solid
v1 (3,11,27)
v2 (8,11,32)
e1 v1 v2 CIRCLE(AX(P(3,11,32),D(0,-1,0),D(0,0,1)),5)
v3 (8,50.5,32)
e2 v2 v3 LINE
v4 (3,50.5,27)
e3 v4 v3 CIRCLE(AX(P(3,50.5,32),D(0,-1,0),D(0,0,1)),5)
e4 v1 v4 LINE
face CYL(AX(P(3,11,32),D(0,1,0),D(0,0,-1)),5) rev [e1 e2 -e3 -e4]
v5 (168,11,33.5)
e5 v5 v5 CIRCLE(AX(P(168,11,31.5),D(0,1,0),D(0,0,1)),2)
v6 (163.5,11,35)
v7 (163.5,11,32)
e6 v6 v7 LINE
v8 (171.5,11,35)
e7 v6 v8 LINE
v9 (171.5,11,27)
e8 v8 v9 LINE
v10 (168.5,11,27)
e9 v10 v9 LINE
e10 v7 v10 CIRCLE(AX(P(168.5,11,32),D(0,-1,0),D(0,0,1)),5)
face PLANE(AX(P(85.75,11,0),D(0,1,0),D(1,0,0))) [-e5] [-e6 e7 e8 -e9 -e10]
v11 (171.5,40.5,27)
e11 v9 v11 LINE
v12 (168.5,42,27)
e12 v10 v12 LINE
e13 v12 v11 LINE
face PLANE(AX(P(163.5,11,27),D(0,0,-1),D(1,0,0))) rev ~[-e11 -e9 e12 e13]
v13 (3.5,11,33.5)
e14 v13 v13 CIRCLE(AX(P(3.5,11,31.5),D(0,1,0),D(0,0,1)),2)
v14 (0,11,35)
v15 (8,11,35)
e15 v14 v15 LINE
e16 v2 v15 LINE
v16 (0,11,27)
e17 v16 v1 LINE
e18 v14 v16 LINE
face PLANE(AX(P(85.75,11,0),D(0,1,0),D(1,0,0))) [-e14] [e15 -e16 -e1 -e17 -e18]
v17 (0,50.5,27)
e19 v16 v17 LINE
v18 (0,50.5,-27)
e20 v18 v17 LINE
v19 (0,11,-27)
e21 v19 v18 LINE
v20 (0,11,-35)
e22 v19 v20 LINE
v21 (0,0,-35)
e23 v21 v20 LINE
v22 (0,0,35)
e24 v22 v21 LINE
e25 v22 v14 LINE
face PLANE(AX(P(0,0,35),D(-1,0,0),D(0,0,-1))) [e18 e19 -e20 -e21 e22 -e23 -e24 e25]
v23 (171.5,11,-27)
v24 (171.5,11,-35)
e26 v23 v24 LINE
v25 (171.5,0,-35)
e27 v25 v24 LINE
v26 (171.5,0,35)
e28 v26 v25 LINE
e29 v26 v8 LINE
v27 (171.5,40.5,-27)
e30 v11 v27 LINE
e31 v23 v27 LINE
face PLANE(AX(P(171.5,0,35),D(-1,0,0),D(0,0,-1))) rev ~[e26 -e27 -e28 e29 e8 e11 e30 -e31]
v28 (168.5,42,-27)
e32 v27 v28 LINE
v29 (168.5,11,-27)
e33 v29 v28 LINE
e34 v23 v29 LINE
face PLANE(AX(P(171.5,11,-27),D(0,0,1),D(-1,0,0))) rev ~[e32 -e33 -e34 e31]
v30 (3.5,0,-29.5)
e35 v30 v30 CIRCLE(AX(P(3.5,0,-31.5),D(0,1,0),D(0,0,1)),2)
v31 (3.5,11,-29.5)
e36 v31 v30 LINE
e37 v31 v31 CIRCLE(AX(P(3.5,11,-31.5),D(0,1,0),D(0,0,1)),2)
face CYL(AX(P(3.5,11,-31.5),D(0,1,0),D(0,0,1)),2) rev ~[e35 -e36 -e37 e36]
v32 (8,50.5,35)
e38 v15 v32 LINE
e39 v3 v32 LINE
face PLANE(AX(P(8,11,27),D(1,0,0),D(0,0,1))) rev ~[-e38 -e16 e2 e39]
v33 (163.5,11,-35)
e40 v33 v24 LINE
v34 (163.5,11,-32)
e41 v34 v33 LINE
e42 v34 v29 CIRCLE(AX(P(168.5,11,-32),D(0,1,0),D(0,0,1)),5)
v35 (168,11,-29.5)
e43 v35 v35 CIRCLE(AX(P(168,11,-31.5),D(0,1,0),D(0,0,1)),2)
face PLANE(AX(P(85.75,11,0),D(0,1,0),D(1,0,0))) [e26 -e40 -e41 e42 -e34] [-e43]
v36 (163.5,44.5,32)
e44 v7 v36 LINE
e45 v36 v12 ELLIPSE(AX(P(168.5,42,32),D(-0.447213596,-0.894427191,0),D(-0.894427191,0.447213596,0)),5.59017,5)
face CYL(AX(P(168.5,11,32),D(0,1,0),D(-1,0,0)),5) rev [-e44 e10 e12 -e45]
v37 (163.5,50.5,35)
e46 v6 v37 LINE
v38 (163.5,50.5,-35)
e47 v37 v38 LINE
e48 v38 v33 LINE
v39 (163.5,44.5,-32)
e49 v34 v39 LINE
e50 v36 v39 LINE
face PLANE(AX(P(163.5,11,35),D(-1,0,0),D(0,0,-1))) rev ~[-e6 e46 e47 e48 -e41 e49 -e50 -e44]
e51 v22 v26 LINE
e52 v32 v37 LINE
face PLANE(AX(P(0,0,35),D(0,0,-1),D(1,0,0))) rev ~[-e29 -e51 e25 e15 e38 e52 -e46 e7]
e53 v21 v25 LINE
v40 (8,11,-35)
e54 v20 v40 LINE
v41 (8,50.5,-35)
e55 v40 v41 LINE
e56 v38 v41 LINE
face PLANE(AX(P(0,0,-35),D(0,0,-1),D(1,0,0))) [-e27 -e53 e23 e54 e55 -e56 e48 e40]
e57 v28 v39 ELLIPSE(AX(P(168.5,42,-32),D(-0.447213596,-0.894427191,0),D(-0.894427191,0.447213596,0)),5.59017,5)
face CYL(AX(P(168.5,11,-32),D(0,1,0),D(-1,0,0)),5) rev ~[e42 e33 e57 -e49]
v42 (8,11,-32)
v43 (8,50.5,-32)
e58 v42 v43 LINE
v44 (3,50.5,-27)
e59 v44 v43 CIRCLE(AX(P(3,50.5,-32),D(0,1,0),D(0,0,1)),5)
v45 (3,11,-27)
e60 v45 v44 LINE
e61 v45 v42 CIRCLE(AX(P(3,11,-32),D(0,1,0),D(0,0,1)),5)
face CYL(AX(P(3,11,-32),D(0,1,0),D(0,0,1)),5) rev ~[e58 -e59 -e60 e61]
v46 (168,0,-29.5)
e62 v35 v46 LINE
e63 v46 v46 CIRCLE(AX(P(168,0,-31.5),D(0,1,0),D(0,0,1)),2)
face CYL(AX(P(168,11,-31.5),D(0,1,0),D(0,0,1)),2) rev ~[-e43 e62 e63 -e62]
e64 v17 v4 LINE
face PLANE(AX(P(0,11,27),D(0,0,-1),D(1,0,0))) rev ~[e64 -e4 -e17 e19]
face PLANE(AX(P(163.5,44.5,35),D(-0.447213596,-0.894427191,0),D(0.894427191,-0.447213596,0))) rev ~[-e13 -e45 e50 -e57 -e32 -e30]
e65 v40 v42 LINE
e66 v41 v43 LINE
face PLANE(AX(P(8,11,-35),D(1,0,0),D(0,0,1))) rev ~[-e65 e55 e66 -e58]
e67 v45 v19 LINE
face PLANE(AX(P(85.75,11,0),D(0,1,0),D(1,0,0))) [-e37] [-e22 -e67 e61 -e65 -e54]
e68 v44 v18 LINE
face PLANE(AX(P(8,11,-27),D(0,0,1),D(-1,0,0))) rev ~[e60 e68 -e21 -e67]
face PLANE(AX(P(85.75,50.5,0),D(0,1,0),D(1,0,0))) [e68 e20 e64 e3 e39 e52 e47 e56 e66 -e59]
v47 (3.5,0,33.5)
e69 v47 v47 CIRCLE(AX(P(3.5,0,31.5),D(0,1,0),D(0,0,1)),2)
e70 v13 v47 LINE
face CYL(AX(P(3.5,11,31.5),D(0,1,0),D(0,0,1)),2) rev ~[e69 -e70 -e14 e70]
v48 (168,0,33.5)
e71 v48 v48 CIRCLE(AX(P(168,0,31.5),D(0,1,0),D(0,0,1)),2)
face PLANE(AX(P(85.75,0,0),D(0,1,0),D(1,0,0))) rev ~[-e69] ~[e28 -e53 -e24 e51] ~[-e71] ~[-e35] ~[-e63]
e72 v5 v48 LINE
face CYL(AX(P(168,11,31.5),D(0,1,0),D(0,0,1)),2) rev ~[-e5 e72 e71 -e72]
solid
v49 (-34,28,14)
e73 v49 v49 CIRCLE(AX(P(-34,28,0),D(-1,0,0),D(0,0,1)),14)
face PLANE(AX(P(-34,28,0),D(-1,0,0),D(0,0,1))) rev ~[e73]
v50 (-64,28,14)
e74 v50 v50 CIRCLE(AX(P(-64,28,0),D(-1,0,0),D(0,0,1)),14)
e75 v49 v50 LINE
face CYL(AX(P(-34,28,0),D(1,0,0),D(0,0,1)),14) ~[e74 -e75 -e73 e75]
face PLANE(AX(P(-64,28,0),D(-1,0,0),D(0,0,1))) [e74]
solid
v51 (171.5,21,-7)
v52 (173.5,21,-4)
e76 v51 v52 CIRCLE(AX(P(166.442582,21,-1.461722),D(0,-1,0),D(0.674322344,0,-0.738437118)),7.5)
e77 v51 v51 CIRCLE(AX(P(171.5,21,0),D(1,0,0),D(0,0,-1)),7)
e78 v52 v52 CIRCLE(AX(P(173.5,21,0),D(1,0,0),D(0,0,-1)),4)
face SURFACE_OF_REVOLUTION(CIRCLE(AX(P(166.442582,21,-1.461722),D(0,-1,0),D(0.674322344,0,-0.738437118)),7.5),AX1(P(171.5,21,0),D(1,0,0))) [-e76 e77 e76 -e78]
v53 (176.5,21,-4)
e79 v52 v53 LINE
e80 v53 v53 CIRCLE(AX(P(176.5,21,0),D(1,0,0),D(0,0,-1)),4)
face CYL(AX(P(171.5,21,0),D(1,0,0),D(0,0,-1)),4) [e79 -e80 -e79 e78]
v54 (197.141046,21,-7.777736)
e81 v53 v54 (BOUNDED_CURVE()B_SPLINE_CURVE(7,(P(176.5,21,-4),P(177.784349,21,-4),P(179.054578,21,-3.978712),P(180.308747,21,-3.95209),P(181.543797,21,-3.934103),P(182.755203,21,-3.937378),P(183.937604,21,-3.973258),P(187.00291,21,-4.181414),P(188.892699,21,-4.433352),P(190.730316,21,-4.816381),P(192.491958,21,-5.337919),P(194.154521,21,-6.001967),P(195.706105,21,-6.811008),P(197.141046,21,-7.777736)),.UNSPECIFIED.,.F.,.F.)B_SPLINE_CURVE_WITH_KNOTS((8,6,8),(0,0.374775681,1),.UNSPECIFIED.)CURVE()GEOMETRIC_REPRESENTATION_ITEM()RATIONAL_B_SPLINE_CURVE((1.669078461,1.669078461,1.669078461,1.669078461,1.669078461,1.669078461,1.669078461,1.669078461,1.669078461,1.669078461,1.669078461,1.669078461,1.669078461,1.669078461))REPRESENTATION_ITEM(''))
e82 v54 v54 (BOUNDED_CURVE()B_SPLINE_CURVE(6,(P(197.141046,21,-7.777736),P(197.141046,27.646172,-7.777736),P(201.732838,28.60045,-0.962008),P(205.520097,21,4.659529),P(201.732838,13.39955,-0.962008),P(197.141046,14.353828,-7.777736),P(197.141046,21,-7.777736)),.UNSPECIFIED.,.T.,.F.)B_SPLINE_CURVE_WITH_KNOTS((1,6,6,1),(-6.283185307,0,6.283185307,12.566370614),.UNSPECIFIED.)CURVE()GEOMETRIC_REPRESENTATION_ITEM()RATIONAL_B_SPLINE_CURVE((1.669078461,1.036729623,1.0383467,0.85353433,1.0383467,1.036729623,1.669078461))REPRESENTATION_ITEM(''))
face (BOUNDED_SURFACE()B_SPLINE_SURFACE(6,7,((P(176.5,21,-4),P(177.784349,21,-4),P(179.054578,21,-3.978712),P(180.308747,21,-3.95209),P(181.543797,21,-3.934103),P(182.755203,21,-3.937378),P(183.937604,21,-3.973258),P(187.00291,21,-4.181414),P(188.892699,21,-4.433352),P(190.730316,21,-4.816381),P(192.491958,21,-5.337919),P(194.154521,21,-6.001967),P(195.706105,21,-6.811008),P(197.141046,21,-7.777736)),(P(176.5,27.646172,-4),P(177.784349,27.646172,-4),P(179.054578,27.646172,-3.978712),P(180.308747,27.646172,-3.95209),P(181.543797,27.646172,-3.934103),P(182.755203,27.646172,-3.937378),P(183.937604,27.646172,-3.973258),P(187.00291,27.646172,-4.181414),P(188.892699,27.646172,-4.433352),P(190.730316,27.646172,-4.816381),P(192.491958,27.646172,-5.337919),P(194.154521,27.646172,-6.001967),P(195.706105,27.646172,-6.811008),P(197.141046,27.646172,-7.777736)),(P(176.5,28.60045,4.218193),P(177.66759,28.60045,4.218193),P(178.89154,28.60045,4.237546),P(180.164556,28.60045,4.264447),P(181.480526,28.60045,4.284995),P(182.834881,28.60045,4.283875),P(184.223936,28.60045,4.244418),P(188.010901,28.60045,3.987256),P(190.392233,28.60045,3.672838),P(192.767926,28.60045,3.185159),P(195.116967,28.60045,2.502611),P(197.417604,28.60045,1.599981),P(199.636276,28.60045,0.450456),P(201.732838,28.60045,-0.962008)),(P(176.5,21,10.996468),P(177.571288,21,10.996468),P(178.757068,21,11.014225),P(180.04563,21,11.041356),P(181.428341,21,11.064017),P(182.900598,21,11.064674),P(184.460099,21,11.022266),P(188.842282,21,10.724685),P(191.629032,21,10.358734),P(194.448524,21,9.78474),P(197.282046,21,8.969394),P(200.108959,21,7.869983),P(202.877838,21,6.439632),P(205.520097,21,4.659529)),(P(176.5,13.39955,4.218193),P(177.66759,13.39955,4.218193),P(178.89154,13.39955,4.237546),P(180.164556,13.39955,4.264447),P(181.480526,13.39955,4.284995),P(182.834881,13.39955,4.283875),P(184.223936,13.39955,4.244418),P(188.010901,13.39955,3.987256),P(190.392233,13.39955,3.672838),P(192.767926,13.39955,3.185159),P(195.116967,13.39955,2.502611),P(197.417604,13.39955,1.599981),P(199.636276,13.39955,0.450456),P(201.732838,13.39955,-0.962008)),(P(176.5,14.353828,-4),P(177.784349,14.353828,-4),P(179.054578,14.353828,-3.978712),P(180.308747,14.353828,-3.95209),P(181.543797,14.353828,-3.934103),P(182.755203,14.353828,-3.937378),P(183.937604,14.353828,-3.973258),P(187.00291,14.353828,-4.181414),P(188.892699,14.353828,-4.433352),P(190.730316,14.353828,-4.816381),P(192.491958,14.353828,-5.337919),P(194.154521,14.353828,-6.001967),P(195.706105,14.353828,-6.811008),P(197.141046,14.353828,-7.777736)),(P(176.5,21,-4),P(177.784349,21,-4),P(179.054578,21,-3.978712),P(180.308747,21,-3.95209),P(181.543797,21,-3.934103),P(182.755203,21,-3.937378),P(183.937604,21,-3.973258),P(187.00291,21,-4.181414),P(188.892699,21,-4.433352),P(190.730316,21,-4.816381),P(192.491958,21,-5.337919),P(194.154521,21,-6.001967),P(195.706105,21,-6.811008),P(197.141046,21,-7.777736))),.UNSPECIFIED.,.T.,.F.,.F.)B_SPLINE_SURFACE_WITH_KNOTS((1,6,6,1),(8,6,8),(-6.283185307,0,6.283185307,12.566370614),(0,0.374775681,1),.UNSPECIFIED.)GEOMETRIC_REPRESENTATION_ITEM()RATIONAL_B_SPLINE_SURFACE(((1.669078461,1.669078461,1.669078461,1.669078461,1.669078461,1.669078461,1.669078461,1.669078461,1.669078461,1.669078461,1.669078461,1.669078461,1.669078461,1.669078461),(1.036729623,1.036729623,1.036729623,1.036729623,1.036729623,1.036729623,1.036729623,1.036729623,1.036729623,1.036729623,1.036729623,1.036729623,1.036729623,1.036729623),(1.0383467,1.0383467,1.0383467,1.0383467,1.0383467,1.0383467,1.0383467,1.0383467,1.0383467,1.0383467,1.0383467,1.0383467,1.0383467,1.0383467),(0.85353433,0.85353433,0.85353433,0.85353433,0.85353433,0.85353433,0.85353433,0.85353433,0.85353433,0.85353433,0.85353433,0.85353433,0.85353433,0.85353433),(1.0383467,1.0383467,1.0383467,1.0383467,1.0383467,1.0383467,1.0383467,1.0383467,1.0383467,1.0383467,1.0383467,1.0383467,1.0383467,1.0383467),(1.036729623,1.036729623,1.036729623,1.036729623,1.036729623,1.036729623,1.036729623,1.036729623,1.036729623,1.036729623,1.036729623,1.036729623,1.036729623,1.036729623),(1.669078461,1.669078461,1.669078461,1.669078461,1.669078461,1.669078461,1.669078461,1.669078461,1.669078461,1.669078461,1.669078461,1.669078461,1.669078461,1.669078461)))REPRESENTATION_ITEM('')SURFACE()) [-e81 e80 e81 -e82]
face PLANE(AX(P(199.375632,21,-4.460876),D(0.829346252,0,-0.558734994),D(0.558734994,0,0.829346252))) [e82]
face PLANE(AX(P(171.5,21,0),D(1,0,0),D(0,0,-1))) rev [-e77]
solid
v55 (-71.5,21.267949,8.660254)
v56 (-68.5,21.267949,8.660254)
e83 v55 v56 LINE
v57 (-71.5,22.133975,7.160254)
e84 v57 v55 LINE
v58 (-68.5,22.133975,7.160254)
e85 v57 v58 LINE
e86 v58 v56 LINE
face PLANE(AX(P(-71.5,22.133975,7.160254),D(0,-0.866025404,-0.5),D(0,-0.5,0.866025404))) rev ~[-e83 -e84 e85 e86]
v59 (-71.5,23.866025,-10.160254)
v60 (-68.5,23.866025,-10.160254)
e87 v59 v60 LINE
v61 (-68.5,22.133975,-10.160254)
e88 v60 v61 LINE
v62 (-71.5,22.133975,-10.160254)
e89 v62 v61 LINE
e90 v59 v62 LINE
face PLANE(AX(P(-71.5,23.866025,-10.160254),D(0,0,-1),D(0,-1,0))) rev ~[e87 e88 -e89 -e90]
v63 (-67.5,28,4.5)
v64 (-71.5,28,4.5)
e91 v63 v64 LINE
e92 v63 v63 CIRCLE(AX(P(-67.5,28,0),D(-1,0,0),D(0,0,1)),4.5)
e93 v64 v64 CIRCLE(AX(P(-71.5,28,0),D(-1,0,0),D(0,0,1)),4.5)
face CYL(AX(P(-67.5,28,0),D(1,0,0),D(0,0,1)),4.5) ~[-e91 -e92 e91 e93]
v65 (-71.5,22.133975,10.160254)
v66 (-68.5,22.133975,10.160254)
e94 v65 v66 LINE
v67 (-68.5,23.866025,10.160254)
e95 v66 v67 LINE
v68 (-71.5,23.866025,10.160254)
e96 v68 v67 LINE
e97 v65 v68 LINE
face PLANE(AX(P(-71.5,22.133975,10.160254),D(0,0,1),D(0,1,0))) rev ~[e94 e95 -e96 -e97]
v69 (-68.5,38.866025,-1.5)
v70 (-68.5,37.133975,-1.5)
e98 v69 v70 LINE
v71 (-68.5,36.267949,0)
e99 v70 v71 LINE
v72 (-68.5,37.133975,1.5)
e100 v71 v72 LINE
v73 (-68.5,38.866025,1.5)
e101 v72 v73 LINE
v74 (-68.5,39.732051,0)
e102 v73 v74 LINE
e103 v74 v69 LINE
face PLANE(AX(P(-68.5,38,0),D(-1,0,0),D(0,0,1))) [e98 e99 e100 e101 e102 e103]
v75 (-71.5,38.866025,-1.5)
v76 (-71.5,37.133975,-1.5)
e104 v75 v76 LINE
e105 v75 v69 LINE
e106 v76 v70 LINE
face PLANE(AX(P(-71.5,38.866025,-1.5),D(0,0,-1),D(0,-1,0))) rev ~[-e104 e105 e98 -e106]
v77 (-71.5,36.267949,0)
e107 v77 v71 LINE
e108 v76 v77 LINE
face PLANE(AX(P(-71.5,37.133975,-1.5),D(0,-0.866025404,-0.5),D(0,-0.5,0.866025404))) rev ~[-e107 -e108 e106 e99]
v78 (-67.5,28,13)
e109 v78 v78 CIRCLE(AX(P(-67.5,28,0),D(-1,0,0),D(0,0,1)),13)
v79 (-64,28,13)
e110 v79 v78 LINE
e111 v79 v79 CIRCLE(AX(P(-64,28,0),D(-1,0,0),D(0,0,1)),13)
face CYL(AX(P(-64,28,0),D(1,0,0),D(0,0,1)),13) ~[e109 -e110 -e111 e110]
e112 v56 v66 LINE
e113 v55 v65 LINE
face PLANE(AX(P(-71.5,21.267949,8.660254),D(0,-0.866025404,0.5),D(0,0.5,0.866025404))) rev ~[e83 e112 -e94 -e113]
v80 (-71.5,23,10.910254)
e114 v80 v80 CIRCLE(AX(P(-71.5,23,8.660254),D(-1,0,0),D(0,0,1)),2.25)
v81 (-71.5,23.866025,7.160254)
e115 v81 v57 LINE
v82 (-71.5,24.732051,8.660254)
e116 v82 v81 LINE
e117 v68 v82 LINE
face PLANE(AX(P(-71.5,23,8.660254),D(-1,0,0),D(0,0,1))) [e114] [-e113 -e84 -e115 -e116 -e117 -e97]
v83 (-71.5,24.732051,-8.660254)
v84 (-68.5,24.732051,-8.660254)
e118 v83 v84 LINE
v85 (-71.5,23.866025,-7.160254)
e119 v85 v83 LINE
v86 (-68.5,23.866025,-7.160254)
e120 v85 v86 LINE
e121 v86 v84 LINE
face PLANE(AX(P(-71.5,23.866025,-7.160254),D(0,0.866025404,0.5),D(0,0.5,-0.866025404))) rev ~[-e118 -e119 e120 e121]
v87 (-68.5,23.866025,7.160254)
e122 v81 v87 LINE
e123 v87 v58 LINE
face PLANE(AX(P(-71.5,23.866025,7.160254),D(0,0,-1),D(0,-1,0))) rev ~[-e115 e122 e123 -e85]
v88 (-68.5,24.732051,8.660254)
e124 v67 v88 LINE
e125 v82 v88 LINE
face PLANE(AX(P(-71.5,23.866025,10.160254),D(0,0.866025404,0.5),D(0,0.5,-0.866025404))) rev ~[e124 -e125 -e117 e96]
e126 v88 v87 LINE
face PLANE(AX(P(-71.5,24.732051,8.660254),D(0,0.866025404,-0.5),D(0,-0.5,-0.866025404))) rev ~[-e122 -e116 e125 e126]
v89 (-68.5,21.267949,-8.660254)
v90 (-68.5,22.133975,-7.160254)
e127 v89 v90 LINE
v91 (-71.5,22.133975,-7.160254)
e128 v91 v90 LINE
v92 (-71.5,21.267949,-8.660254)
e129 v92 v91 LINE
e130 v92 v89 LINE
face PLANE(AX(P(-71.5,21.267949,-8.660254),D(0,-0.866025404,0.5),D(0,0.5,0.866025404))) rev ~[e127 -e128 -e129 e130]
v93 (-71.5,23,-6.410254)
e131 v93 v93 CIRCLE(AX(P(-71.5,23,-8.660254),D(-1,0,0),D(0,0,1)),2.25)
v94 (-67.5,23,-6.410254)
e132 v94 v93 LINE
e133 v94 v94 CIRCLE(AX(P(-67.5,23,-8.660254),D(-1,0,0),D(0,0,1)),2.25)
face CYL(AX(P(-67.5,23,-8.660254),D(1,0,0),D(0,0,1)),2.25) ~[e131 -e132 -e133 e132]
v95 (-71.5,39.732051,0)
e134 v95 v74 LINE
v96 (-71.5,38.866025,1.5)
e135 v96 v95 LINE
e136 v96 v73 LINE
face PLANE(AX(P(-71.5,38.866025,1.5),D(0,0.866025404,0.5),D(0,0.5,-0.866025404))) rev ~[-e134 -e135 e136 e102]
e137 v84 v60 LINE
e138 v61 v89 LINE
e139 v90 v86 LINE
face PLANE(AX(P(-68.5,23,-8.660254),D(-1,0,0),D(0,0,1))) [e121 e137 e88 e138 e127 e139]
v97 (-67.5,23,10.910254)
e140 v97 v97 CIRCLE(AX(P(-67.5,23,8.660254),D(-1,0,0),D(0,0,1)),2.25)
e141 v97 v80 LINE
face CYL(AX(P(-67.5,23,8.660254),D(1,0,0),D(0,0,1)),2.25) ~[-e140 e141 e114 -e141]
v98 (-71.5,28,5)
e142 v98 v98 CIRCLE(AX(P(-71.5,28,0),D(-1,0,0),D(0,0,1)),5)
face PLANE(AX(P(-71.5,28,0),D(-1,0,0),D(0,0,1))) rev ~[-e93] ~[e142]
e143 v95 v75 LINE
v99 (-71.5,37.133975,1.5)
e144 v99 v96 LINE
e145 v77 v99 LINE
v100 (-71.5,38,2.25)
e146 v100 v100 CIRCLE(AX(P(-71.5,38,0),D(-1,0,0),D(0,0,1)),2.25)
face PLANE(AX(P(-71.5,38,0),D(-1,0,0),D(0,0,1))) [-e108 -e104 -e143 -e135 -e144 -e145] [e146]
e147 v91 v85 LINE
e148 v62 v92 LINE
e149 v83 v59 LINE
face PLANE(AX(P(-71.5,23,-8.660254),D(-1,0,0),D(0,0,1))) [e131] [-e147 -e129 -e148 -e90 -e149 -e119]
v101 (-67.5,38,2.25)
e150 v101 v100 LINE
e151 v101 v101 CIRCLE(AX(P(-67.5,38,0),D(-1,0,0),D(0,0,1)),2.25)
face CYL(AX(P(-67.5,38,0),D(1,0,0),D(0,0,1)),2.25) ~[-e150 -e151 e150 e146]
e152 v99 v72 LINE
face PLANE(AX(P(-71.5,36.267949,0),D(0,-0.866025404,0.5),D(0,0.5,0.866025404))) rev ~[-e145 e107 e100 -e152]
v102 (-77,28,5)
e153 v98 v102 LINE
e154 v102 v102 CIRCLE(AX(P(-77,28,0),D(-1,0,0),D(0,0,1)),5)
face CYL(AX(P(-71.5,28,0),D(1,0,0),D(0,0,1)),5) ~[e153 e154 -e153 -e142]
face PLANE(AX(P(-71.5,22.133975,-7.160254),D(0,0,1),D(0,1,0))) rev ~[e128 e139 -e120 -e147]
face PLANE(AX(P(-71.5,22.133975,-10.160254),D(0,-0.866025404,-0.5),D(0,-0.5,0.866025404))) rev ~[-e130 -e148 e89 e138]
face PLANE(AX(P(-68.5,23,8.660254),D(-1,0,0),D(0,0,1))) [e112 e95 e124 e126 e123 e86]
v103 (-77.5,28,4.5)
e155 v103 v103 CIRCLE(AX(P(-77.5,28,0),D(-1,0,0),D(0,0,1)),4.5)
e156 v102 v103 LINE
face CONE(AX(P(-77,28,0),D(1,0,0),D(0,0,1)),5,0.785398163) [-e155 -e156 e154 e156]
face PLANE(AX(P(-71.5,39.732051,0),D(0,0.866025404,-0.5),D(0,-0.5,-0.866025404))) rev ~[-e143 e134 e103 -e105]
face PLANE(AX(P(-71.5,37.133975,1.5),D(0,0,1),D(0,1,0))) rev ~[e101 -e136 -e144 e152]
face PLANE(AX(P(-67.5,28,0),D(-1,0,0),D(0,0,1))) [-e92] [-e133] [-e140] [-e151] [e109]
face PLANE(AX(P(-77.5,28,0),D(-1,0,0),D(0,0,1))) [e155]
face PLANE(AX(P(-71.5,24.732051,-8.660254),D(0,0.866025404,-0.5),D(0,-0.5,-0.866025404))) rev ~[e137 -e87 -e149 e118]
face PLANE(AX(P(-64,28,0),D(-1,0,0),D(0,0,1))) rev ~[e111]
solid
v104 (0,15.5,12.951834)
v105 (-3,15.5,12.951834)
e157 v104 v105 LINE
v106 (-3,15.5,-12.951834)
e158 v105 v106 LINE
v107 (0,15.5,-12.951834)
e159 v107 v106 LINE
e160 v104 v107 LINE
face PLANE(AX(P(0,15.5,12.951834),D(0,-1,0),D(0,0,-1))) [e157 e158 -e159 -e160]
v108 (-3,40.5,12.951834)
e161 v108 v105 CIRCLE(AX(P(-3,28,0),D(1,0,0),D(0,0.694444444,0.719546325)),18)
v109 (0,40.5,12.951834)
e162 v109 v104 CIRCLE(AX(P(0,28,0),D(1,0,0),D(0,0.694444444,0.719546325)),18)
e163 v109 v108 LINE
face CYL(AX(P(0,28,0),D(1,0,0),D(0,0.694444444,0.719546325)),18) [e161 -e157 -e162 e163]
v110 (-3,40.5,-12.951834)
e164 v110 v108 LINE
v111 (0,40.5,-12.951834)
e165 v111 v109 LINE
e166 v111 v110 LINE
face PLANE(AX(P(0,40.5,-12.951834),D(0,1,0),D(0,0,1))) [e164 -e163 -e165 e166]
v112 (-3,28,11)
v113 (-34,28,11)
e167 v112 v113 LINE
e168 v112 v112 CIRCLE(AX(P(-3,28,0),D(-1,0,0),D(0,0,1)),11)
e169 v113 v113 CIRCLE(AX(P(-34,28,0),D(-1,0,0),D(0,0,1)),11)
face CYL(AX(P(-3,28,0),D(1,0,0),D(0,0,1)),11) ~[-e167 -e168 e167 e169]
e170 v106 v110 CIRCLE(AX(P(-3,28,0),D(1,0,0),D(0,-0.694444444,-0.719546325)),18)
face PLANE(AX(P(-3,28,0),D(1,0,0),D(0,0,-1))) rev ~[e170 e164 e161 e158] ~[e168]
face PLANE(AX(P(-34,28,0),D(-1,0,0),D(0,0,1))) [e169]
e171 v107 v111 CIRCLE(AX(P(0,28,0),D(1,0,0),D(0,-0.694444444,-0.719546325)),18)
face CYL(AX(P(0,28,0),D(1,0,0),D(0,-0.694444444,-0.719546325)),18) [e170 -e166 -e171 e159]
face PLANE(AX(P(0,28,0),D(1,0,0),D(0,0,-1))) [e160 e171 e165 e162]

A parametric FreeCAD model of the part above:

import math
import FreeCAD as App
import Part
import Sketcher
Q = App.Units.Quantity


def edges_at(feature, points):
    """Names of the edges that pass closest to the given points."""
    edges = feature.Shape.Edges
    near = lambda p: min(range(len(edges)), key=lambda i: edges[i].distToShape(Part.Vertex(*p))[0])
    return sorted({f"Edge{near(p) + 1}" for p in points})

doc = App.newDocument("Part")
body = doc.addObject("PartDesign::Body", "Body")

sketch1 = body.newObject("Sketcher::SketchObject", "Sketch")
sketch1.AttachmentSupport = (doc.getObject("XZ_Plane"), [""])
sketch1.MapMode = "FlatFace"
sketch1.addGeometry([
    Part.LineSegment(App.Vector(0, -35, 0), App.Vector(0, 35, 0)),
    Part.LineSegment(App.Vector(0, 35, 0), App.Vector(172, 35, 0)),
    Part.LineSegment(App.Vector(172, 35, 0), App.Vector(172, -35, 0)),
    Part.LineSegment(App.Vector(172, -35, 0), App.Vector(0, -35, 0)),
], False)
sketch1.addConstraint([
    Sketcher.Constraint("Coincident", 0, 2, 1, 1),
    Sketcher.Constraint("Coincident", 1, 2, 2, 1),
    Sketcher.Constraint("Coincident", 2, 2, 3, 1),
    Sketcher.Constraint("Coincident", 3, 2, 0, 1),
    Sketcher.Constraint("Vertical", 0),
    Sketcher.Constraint("Horizontal", 1),
    Sketcher.Constraint("Vertical", 2),
    Sketcher.Constraint("Horizontal", 3),
    Sketcher.Constraint("Symmetric", 0, 2, 3, 2, -1, 1),
    Sketcher.Constraint("DistanceY", 0, 1, 0, 2, 70.0),
    Sketcher.Constraint("DistanceX", 1, 1, 1, 2, 171.5),
])
pad1 = body.newObject("PartDesign::Pad", "Pad")
pad1.Profile = sketch1
pad1.Length = 11
pad1.Reversed = True

sketch2 = body.newObject("Sketcher::SketchObject", "Sketch001")
sketch2.AttachmentSupport = (doc.getObject("XZ_Plane"), [""])
sketch2.MapMode = "FlatFace"
sketch2.AttachmentOffset = App.Placement(App.Vector(0, 0, -11), App.Rotation())
sketch2.addGeometry([
    Part.LineSegment(App.Vector(0, -27, 0), App.Vector(0, 27, 0)),
    Part.LineSegment(App.Vector(0, 27, 0), App.Vector(8, 27, 0)),
    Part.LineSegment(App.Vector(8, 27, 0), App.Vector(8, 35, 0)),
    Part.LineSegment(App.Vector(8, 35, 0), App.Vector(164, 35, 0)),
    Part.LineSegment(App.Vector(164, 35, 0), App.Vector(164, 27, 0)),
    Part.LineSegment(App.Vector(164, 27, 0), App.Vector(172, 27, 0)),
    Part.LineSegment(App.Vector(172, 27, 0), App.Vector(172, -27, 0)),
    Part.LineSegment(App.Vector(172, -27, 0), App.Vector(164, -27, 0)),
    Part.LineSegment(App.Vector(164, -27, 0), App.Vector(164, -35, 0)),
    Part.LineSegment(App.Vector(164, -35, 0), App.Vector(8, -35, 0)),
    Part.LineSegment(App.Vector(8, -35, 0), App.Vector(8, -27, 0)),
    Part.LineSegment(App.Vector(8, -27, 0), App.Vector(0, -27, 0)),
], False)
sketch2.addConstraint([
    Sketcher.Constraint("Coincident", 0, 2, 1, 1),
    Sketcher.Constraint("Coincident", 1, 2, 2, 1),
    Sketcher.Constraint("Coincident", 2, 2, 3, 1),
    Sketcher.Constraint("Coincident", 3, 2, 4, 1),
    Sketcher.Constraint("Coincident", 4, 2, 5, 1),
    Sketcher.Constraint("Coincident", 5, 2, 6, 1),
    Sketcher.Constraint("Coincident", 6, 2, 7, 1),
    Sketcher.Constraint("Coincident", 7, 2, 8, 1),
    Sketcher.Constraint("Coincident", 8, 2, 9, 1),
    Sketcher.Constraint("Coincident", 9, 2, 10, 1),
    Sketcher.Constraint("Coincident", 10, 2, 11, 1),
    Sketcher.Constraint("Coincident", 11, 2, 0, 1),
    Sketcher.Constraint("Vertical", 0),
    Sketcher.Constraint("Horizontal", 1),
    Sketcher.Constraint("Vertical", 2),
    Sketcher.Constraint("Horizontal", 3),
    Sketcher.Constraint("Vertical", 4),
    Sketcher.Constraint("Horizontal", 5),
    Sketcher.Constraint("Vertical", 6),
    Sketcher.Constraint("Horizontal", 7),
    Sketcher.Constraint("Vertical", 8),
    Sketcher.Constraint("Horizontal", 9),
    Sketcher.Constraint("Vertical", 10),
    Sketcher.Constraint("Horizontal", 11),
    Sketcher.Constraint("Symmetric", 0, 2, 11, 2, -1, 1),
    Sketcher.Constraint("Symmetric", 4, 2, 7, 2, -1),
    Sketcher.Constraint("Symmetric", 2, 2, 9, 2, -1),
    Sketcher.Constraint("Horizontal", 1, 2, 4, 2),
    Sketcher.Constraint("Equal", 1, 5),
    Sketcher.Constraint("Equal", 11, 2),
    Sketcher.Constraint("DistanceX", 1, 1, 1, 2, 8.0),
    Sketcher.Constraint("DistanceY", 0, 1, 0, 2, 54.0),
    Sketcher.Constraint("DistanceX", 3, 1, 3, 2, 155.5),
])
pad2 = body.newObject("PartDesign::Pad", "Pad001")
pad2.Profile = sketch2
pad2.Length = 39.5
pad2.Reversed = True
doc.recompute()

fillet = body.newObject("PartDesign::Fillet", "Fillet")
fillet.Base = (pad2, edges_at(pad2, [
    (8, 30.75, -27),
    (8, 30.75, 27),
    (163.5, 30.75, 27),
    (163.5, 30.75, -27),
]))
fillet.Radius = 5

sketch3 = body.newObject("Sketcher::SketchObject", "Sketch002")
sketch3.AttachmentSupport = (doc.getObject("XZ_Plane"), [""])
sketch3.MapMode = "FlatFace"
sketch3.AttachmentOffset = App.Placement(App.Vector(0, 0, -50.5), App.Rotation())
sketch3.addGeometry([
    Part.LineSegment(App.Vector(164, -35, 0), App.Vector(164, 35, 0)),
    Part.LineSegment(App.Vector(164, 35, 0), App.Vector(172, 35, 0)),
    Part.LineSegment(App.Vector(172, 35, 0), App.Vector(172, -35, 0)),
    Part.LineSegment(App.Vector(172, -35, 0), App.Vector(164, -35, 0)),
], False)
sketch3.addConstraint([
    Sketcher.Constraint("Coincident", 0, 2, 1, 1),
    Sketcher.Constraint("Coincident", 1, 2, 2, 1),
    Sketcher.Constraint("Coincident", 2, 2, 3, 1),
    Sketcher.Constraint("Coincident", 3, 2, 0, 1),
    Sketcher.Constraint("Vertical", 0),
    Sketcher.Constraint("Horizontal", 1),
    Sketcher.Constraint("Vertical", 2),
    Sketcher.Constraint("Horizontal", 3),
    Sketcher.Constraint("DistanceX", 1, 1, 1, 2, 8.0),
    Sketcher.Constraint("DistanceY", 0, 1, 0, 2, 70.0),
    Sketcher.Constraint("DistanceY", -1, 1, 0, 2, 35.0),
    Sketcher.Constraint("DistanceX", -1, 1, 0, 2, 163.5),
])
pocket1 = body.newObject("PartDesign::Pocket", "Pocket")
pocket1.Profile = sketch3
pocket1.Length = 6
pocket1.Reversed = True

sketch4 = body.newObject("Sketcher::SketchObject", "Sketch003")
sketch4.AttachmentSupport = (doc.getObject("XY_Plane"), [""])
sketch4.MapMode = "FlatFace"
sketch4.AttachmentOffset = App.Placement(App.Vector(0, 0, 35), App.Rotation())
sketch4.addGeometry([
    Part.LineSegment(App.Vector(163.5, 44.5, 0), App.Vector(171.5, 40.5, 0)),
    Part.LineSegment(App.Vector(171.5, 40.5, 0), App.Vector(171.5, 44.5, 0)),
    Part.LineSegment(App.Vector(171.5, 44.5, 0), App.Vector(163.5, 44.5, 0)),
], False)
sketch4.addConstraint([
    Sketcher.Constraint("Coincident", 0, 2, 1, 1),
    Sketcher.Constraint("Coincident", 1, 2, 2, 1),
    Sketcher.Constraint("Coincident", 2, 2, 0, 1),
    Sketcher.Constraint("Vertical", 1),
    Sketcher.Constraint("Horizontal", 2),
    Sketcher.Constraint("DistanceX", 2, 2, 2, 1, 8.0),
    Sketcher.Constraint("DistanceY", 1, 1, 1, 2, 4.0),
    Sketcher.Constraint("DistanceX", -1, 1, 0, 2, 171.5),
    Sketcher.Constraint("DistanceY", -1, 1, 0, 2, 40.5),
])
pocket2 = body.newObject("PartDesign::Pocket", "Pocket001")
pocket2.Profile = sketch4
pocket2.Length = 67

sketch5 = body.newObject("Sketcher::SketchObject", "Sketch004")
sketch5.AttachmentSupport = (doc.getObject("XZ_Plane"), [""])
sketch5.MapMode = "FlatFace"
sketch5.AttachmentOffset = App.Placement(App.Vector(0, 0, -11), App.Rotation())
sketch5.addGeometry([
    Part.Circle(App.Vector(3.5, -31.5, 0), App.Vector(0, 0, 1), 2),
    Part.Circle(App.Vector(3.5, 31.5, 0), App.Vector(0, 0, 1), 2),
    Part.Circle(App.Vector(168, 31.5, 0), App.Vector(0, 0, 1), 2),
    Part.Circle(App.Vector(168, -31.5, 0), App.Vector(0, 0, 1), 2),
], False)
sketch5.addConstraint([
    Sketcher.Constraint("Equal", 0, 1),
    Sketcher.Constraint("Equal", 1, 2),
    Sketcher.Constraint("Equal", 2, 3),
    Sketcher.Constraint("Symmetric", 0, 3, 1, 3, -1),
    Sketcher.Constraint("Symmetric", 2, 3, 3, 3, -1),
    Sketcher.Constraint("Horizontal", 1, 3, 2, 3),
    Sketcher.Constraint("Diameter", 0, 4.0),
    Sketcher.Constraint("DistanceX", -1, 1, 2, 3, 168.0),
    Sketcher.Constraint("DistanceY", 0, 3, 1, 3, 63.0),
    Sketcher.Constraint("DistanceX", -1, 1, 0, 3, 3.5),
])
pocket3 = body.newObject("PartDesign::Pocket", "Pocket002")
pocket3.Profile = sketch5
pocket3.Length = 11
pocket3.Reversed = True
body2 = doc.addObject("PartDesign::Body", "Body001")

sketch6 = body2.newObject("Sketcher::SketchObject", "Sketch005")
sketch6.AttachmentSupport = (doc.getObject("YZ_Plane001"), [""])
sketch6.MapMode = "FlatFace"
sketch6.addGeometry([
    Part.LineSegment(App.Vector(40, 13, 0), App.Vector(40, -13, 0)),
    Part.ArcOfCircle(Part.Circle(App.Vector(28, 0, 0), App.Vector(0, 0, 1), 18), math.radians(-134), math.radians(-46)),
    Part.LineSegment(App.Vector(16, -13, 0), App.Vector(16, 13, 0)),
    Part.ArcOfCircle(Part.Circle(App.Vector(28, 0, 0), App.Vector(0, 0, 1), 18), math.radians(46), math.radians(134)),
], False)
sketch6.addConstraint([
    Sketcher.Constraint("Coincident", 0, 2, 1, 2),
    Sketcher.Constraint("Coincident", 1, 1, 2, 1),
    Sketcher.Constraint("Coincident", 2, 2, 3, 2),
    Sketcher.Constraint("Coincident", 3, 1, 0, 1),
    Sketcher.Constraint("Vertical", 0),
    Sketcher.Constraint("Vertical", 2),
    Sketcher.Constraint("Coincident", 3, 3, 1, 3),
    Sketcher.Constraint("Equal", 1, 3),
    Sketcher.Constraint("PointOnObject", 1, 3, -1),
    Sketcher.Constraint("Horizontal", 0, 2, 1, 1),
    Sketcher.Constraint("Radius", 1, 18.0),
    Sketcher.Constraint("DistanceX", -1, 1, 1, 3, 28.0),
    Sketcher.Constraint("DistanceX", 1, 1, 0, 2, 25.0),
])
pad3 = body2.newObject("PartDesign::Pad", "Pad002")
pad3.Profile = sketch6
pad3.Length = 3
pad3.Reversed = True

sketch7 = body2.newObject("Sketcher::SketchObject", "Sketch006")
sketch7.AttachmentSupport = (doc.getObject("YZ_Plane001"), [""])
sketch7.MapMode = "FlatFace"
sketch7.AttachmentOffset = App.Placement(App.Vector(0, 0, -3), App.Rotation())
sketch7.addGeometry(Part.Circle(App.Vector(28, 0, 0), App.Vector(0, 0, 1), 11), False)
sketch7.addConstraint([
    Sketcher.Constraint("PointOnObject", 0, 3, -1),
    Sketcher.Constraint("Diameter", 0, 22.0),
    Sketcher.Constraint("DistanceX", -1, 1, 0, 3, 28.0),
])
pad4 = body2.newObject("PartDesign::Pad", "Pad003")
pad4.Profile = sketch7
pad4.Length = 31
pad4.Reversed = True
body3 = doc.addObject("PartDesign::Body", "Body002")

sketch8 = body3.newObject("Sketcher::SketchObject", "Sketch007")
sketch8.AttachmentSupport = (doc.getObject("YZ_Plane002"), [""])
sketch8.MapMode = "FlatFace"
sketch8.AttachmentOffset = App.Placement(App.Vector(0, 0, -34), App.Rotation())
sketch8.addGeometry(Part.Circle(App.Vector(28, 0, 0), App.Vector(0, 0, 1), 14), False)
sketch8.addConstraint([
    Sketcher.Constraint("PointOnObject", 0, 3, -1),
    Sketcher.Constraint("Diameter", 0, 28.0),
    Sketcher.Constraint("DistanceX", -1, 1, 0, 3, 28.0),
])
pad5 = body3.newObject("PartDesign::Pad", "Pad004")
pad5.Profile = sketch8
pad5.Length = 30
pad5.Reversed = True
body4 = doc.addObject("PartDesign::Body", "Body003")

sketch9 = body4.newObject("Sketcher::SketchObject", "Sketch008")
sketch9.AttachmentSupport = (doc.getObject("YZ_Plane003"), [""])
sketch9.MapMode = "FlatFace"
sketch9.AttachmentOffset = App.Placement(App.Vector(0, 0, -64), App.Rotation())
sketch9.addGeometry(Part.Circle(App.Vector(28, 0, 0), App.Vector(0, 0, 1), 13), False)
sketch9.addConstraint([
    Sketcher.Constraint("PointOnObject", 0, 3, -1),
    Sketcher.Constraint("Diameter", 0, 26.0),
    Sketcher.Constraint("DistanceX", -1, 1, 0, 3, 28.0),
])
pad6 = body4.newObject("PartDesign::Pad", "Pad005")
pad6.Profile = sketch9
pad6.Length = 3.5
pad6.Reversed = True

sketch10 = body4.newObject("Sketcher::SketchObject", "Sketch009")
sketch10.AttachmentSupport = (doc.getObject("YZ_Plane003"), [""])
sketch10.MapMode = "FlatFace"
sketch10.AttachmentOffset = App.Placement(App.Vector(0, 0, -67.5), App.Rotation())
sketch10.addGeometry([
    Part.Circle(App.Vector(38, 0, 0), App.Vector(0, 0, 1), 2.2),
    Part.Circle(App.Vector(23, 8.7, 0), App.Vector(0, 0, 1), 2.2),
    Part.Circle(App.Vector(23, -8.7, 0), App.Vector(0, 0, 1), 2.2),
], False)
sketch10.addConstraint([
    Sketcher.Constraint("Equal", 0, 1),
    Sketcher.Constraint("Equal", 1, 2),
    Sketcher.Constraint("Symmetric", 1, 3, 2, 3, -1),
    Sketcher.Constraint("PointOnObject", 0, 3, -1),
    Sketcher.Constraint("Diameter", 0, 4.5),
    Sketcher.Constraint("DistanceX", -1, 1, 0, 3, 38.0),
    Sketcher.Constraint("DistanceX", -1, 1, 1, 3, 23.0),
    Sketcher.Constraint("DistanceY", 2, 3, 1, 3, 17.320508),
])
pad7 = body4.newObject("PartDesign::Pad", "Pad006")
pad7.Profile = sketch10
pad7.Length = 4
pad7.Reversed = True

sketch11 = body4.newObject("Sketcher::SketchObject", "Sketch010")
sketch11.AttachmentSupport = (doc.getObject("YZ_Plane003"), [""])
sketch11.MapMode = "FlatFace"
sketch11.AttachmentOffset = App.Placement(App.Vector(0, 0, -71.5), App.Rotation())
sketch11.addGeometry([
    Part.LineSegment(App.Vector(37.1, 1.5, 0), App.Vector(38.9, 1.5, 0)),
    Part.LineSegment(App.Vector(38.9, 1.5, 0), App.Vector(39.7, 0, 0)),
    Part.LineSegment(App.Vector(39.7, 0, 0), App.Vector(38.9, -1.5, 0)),
    Part.LineSegment(App.Vector(38.9, -1.5, 0), App.Vector(37.1, -1.5, 0)),
    Part.LineSegment(App.Vector(37.1, -1.5, 0), App.Vector(36.3, 0, 0)),
    Part.LineSegment(App.Vector(36.3, 0, 0), App.Vector(37.1, 1.5, 0)),
    Part.LineSegment(App.Vector(23.9, 10.2, 0), App.Vector(24.7, 8.7, 0)),
    Part.LineSegment(App.Vector(24.7, 8.7, 0), App.Vector(23.9, 7.2, 0)),
    Part.LineSegment(App.Vector(23.9, 7.2, 0), App.Vector(22.1, 7.2, 0)),
    Part.LineSegment(App.Vector(22.1, 7.2, 0), App.Vector(21.3, 8.7, 0)),
    Part.LineSegment(App.Vector(21.3, 8.7, 0), App.Vector(22.1, 10.2, 0)),
    Part.LineSegment(App.Vector(22.1, 10.2, 0), App.Vector(23.9, 10.2, 0)),
    Part.LineSegment(App.Vector(23.9, -7.2, 0), App.Vector(24.7, -8.7, 0)),
    Part.LineSegment(App.Vector(24.7, -8.7, 0), App.Vector(23.9, -10.2, 0)),
    Part.LineSegment(App.Vector(23.9, -10.2, 0), App.Vector(22.1, -10.2, 0)),
    Part.LineSegment(App.Vector(22.1, -10.2, 0), App.Vector(21.3, -8.7, 0)),
    Part.LineSegment(App.Vector(21.3, -8.7, 0), App.Vector(22.1, -7.2, 0)),
    Part.LineSegment(App.Vector(22.1, -7.2, 0), App.Vector(23.9, -7.2, 0)),
], False)
sketch11.addConstraint([
    Sketcher.Constraint("Coincident", 0, 2, 1, 1),
    Sketcher.Constraint("Coincident", 1, 2, 2, 1),
    Sketcher.Constraint("Coincident", 2, 2, 3, 1),
    Sketcher.Constraint("Coincident", 3, 2, 4, 1),
    Sketcher.Constraint("Coincident", 4, 2, 5, 1),
    Sketcher.Constraint("Coincident", 5, 2, 0, 1),
    Sketcher.Constraint("Coincident", 6, 2, 7, 1),
    Sketcher.Constraint("Coincident", 7, 2, 8, 1),
    Sketcher.Constraint("Coincident", 8, 2, 9, 1),
    Sketcher.Constraint("Coincident", 9, 2, 10, 1),
    Sketcher.Constraint("Coincident", 10, 2, 11, 1),
    Sketcher.Constraint("Coincident", 11, 2, 6, 1),
    Sketcher.Constraint("Coincident", 12, 2, 13, 1),
    Sketcher.Constraint("Coincident", 13, 2, 14, 1),
    Sketcher.Constraint("Coincident", 14, 2, 15, 1),
    Sketcher.Constraint("Coincident", 15, 2, 16, 1),
    Sketcher.Constraint("Coincident", 16, 2, 17, 1),
    Sketcher.Constraint("Coincident", 17, 2, 12, 1),
    Sketcher.Constraint("Horizontal", 0),
    Sketcher.Constraint("Horizontal", 3),
    Sketcher.Constraint("Horizontal", 8),
    Sketcher.Constraint("Horizontal", 11),
    Sketcher.Constraint("Horizontal", 14),
    Sketcher.Constraint("Horizontal", 17),
    Sketcher.Constraint("Symmetric", 0, 2, 2, 2, -1),
    Sketcher.Constraint("Symmetric", 6, 2, 12, 2, -1),
    Sketcher.Constraint("Symmetric", 11, 2, 13, 2, -1),
    Sketcher.Constraint("Symmetric", 9, 2, 15, 2, -1),
    Sketcher.Constraint("Symmetric", 8, 2, 16, 2, -1),
    Sketcher.Constraint("PointOnObject", 1, 2, -1),
    Sketcher.Constraint("PointOnObject", 4, 2, -1),
    Sketcher.Constraint("Parallel", 1, 4),
    Sketcher.Constraint("Parallel", 2, 5),
    Sketcher.Constraint("Parallel", 4, 6),
    Sketcher.Constraint("Parallel", 5, 7),
    Sketcher.Constraint("Parallel", 6, 9),
    Sketcher.Constraint("Parallel", 7, 10),
    Sketcher.Constraint("Parallel", 9, 12),
    Sketcher.Constraint("Parallel", 12, 15),
    Sketcher.Constraint("Horizontal", 6, 2, 9, 2),
    Sketcher.Constraint("Vertical", 8, 2, 10, 2),
    Sketcher.Constraint("Equal", 3, 8),
    Sketcher.Constraint("Equal", 5, 6),
    Sketcher.Constraint("Angle", 1, Q("-60 deg")),
    Sketcher.Constraint("DistanceY", 2, 2, 0, 2, 3.0),
    Sketcher.Constraint("DistanceX", 6, 2, 1, 2, 15.0),
    Sketcher.Constraint("DistanceX", 0, 1, 0, 2, 1.732051),
    Sketcher.Constraint("DistanceX", -1, 1, 1, 2, 39.732051),
    Sketcher.Constraint("DistanceY", 12, 2, 7, 2, 15.820508),
])
pocket4 = body4.newObject("PartDesign::Pocket", "Pocket003")
pocket4.Profile = sketch11
pocket4.Length = 3
pocket4.Reversed = True
body5 = doc.addObject("PartDesign::Body", "Body004")

sketch12 = body5.newObject("Sketcher::SketchObject", "Sketch011")
sketch12.AttachmentSupport = (doc.getObject("YZ_Plane004"), [""])
sketch12.MapMode = "FlatFace"
sketch12.AttachmentOffset = App.Placement(App.Vector(0, 0, -67.5), App.Rotation())
sketch12.addGeometry(Part.Circle(App.Vector(28, 0, 0), App.Vector(0, 0, 1), 4.5), False)
sketch12.addConstraint([
    Sketcher.Constraint("PointOnObject", 0, 3, -1),
    Sketcher.Constraint("Diameter", 0, 9.0),
    Sketcher.Constraint("DistanceX", -1, 1, 0, 3, 28.0),
])
pad8 = body5.newObject("PartDesign::Pad", "Pad007")
pad8.Profile = sketch12
pad8.Length = 4
pad8.Reversed = True
doc.recompute()

boolean = body4.newObject("PartDesign::Boolean", "Boolean")
boolean.Type = "Fuse"
boolean.addObjects([body5])

sketch13 = body4.newObject("Sketcher::SketchObject", "Sketch012")
sketch13.AttachmentSupport = (doc.getObject("YZ_Plane003"), [""])
sketch13.MapMode = "FlatFace"
sketch13.AttachmentOffset = App.Placement(App.Vector(0, 0, -71.5), App.Rotation())
sketch13.addGeometry(Part.Circle(App.Vector(28, 0, 0), App.Vector(0, 0, 1), 5), False)
sketch13.addConstraint([
    Sketcher.Constraint("PointOnObject", 0, 3, -1),
    Sketcher.Constraint("Diameter", 0, 10.0),
    Sketcher.Constraint("DistanceX", -1, 1, 0, 3, 28.0),
])
pad9 = body4.newObject("PartDesign::Pad", "Pad008")
pad9.Profile = sketch13
pad9.Length = 6
pad9.Reversed = True
doc.recompute()

chamfer = body4.newObject("PartDesign::Chamfer", "Chamfer")
chamfer.Base = (pad9, edges_at(pad9, [(-77.5, 28, -5)]))
chamfer.Size = 0.5
body6 = doc.addObject("PartDesign::Body", "Body005")

sketch14 = body6.newObject("Sketcher::SketchObject", "Sketch013")
sketch14.AttachmentSupport = (doc.getObject("YZ_Plane005"), [""])
sketch14.MapMode = "FlatFace"
sketch14.AttachmentOffset = App.Placement(App.Vector(0, 0, 171.5), App.Rotation())
sketch14.addGeometry(Part.Circle(App.Vector(21, 0, 0), App.Vector(0, 0, 1), 4), False)
sketch14.addConstraint([
    Sketcher.Constraint("PointOnObject", 0, 3, -1),
    Sketcher.Constraint("Diameter", 0, 8.0),
    Sketcher.Constraint("DistanceX", -1, 1, 0, 3, 21.0),
])

sketch15 = body6.newObject("Sketcher::SketchObject", "Sketch014")
sketch15.AttachmentSupport = (doc.getObject("XZ_Plane005"), [""])
sketch15.MapMode = "FlatFace"
sketch15.AttachmentOffset = App.Placement(App.Vector(0, 0, -21), App.Rotation())
sketch15.addGeometry([
    Part.LineSegment(App.Vector(171.5, 0, 0), App.Vector(176.5, 0, 0)),
    Part.BSplineCurve([App.Vector(176.5, 0, 0), App.Vector(179.364213, 0, 0), App.Vector(187.383679, 0.380029, 0), App.Vector(195.276393, -1.698433, 0), App.Vector(199.375986, -4.460351, 0)], [4, 1, 4], [0, 0.374775681, 1], False, 3, [1, 1, 1, 1, 1], False),
], False)
sketch15.addConstraint([
    Sketcher.Constraint("Block", 1),
    Sketcher.Constraint("Coincident", 0, 2, 1, 1),
    Sketcher.Constraint("Horizontal", 0),
    Sketcher.Constraint("DistanceX", 0, 1, 0, 2, 5.0),
])
doc.recompute()

additivepipe = body6.newObject("PartDesign::AdditivePipe", "AdditivePipe")
additivepipe.Profile = sketch14
additivepipe.Spine = (sketch15, ["Edge1", "Edge2"])

sketch16 = body6.newObject("Sketcher::SketchObject", "Sketch015")
sketch16.AttachmentSupport = (doc.getObject("XY_Plane005"), [""])
sketch16.MapMode = "FlatFace"
sketch16.addGeometry([
    Part.LineSegment(App.Vector(171.5, 28, 0), App.Vector(171.5, 25, 0)),
    Part.LineSegment(App.Vector(171.5, 25, 0), App.Vector(173.5, 25, 0)),
    Part.ArcOfCircle(Part.Circle(App.Vector(166.4, 22.5, 0), App.Vector(0, 0, 1), 7.5), math.radians(20), math.radians(48)),
], False)
sketch16.addGeometry(Part.LineSegment(App.Vector(166.4, 21, 0), App.Vector(173.5, 21, 0)), True)
sketch16.addConstraint([
    Sketcher.Constraint("Coincident", 0, 2, 1, 1),
    Sketcher.Constraint("Coincident", 1, 2, 2, 1),
    Sketcher.Constraint("Coincident", 2, 2, 0, 1),
    Sketcher.Constraint("Vertical", 0),
    Sketcher.Constraint("Horizontal", 1),
    Sketcher.Constraint("Horizontal", 3),
    Sketcher.Constraint("Vertical", 2, 3, 3, 1),
    Sketcher.Constraint("Vertical", 1, 2, 3, 2),
    Sketcher.Constraint("Radius", 2, 7.5),
    Sketcher.Constraint("DistanceX", 1, 1, 1, 2, 2.0),
    Sketcher.Constraint("DistanceY", 0, 2, 0, 1, 3.0),
    Sketcher.Constraint("DistanceY", -1, 1, 0, 2, 25.0),
    Sketcher.Constraint("DistanceY", -1, 1, 3, 1, 21.0),
    Sketcher.Constraint("DistanceX", -1, 1, 0, 2, 171.5),
])
revolution = body6.newObject("PartDesign::Revolution", "Revolution")
revolution.Profile = sketch16
revolution.ReferenceAxis = (sketch16, ["Axis0"])
revolution.Angle = 360

doc.recompute()
